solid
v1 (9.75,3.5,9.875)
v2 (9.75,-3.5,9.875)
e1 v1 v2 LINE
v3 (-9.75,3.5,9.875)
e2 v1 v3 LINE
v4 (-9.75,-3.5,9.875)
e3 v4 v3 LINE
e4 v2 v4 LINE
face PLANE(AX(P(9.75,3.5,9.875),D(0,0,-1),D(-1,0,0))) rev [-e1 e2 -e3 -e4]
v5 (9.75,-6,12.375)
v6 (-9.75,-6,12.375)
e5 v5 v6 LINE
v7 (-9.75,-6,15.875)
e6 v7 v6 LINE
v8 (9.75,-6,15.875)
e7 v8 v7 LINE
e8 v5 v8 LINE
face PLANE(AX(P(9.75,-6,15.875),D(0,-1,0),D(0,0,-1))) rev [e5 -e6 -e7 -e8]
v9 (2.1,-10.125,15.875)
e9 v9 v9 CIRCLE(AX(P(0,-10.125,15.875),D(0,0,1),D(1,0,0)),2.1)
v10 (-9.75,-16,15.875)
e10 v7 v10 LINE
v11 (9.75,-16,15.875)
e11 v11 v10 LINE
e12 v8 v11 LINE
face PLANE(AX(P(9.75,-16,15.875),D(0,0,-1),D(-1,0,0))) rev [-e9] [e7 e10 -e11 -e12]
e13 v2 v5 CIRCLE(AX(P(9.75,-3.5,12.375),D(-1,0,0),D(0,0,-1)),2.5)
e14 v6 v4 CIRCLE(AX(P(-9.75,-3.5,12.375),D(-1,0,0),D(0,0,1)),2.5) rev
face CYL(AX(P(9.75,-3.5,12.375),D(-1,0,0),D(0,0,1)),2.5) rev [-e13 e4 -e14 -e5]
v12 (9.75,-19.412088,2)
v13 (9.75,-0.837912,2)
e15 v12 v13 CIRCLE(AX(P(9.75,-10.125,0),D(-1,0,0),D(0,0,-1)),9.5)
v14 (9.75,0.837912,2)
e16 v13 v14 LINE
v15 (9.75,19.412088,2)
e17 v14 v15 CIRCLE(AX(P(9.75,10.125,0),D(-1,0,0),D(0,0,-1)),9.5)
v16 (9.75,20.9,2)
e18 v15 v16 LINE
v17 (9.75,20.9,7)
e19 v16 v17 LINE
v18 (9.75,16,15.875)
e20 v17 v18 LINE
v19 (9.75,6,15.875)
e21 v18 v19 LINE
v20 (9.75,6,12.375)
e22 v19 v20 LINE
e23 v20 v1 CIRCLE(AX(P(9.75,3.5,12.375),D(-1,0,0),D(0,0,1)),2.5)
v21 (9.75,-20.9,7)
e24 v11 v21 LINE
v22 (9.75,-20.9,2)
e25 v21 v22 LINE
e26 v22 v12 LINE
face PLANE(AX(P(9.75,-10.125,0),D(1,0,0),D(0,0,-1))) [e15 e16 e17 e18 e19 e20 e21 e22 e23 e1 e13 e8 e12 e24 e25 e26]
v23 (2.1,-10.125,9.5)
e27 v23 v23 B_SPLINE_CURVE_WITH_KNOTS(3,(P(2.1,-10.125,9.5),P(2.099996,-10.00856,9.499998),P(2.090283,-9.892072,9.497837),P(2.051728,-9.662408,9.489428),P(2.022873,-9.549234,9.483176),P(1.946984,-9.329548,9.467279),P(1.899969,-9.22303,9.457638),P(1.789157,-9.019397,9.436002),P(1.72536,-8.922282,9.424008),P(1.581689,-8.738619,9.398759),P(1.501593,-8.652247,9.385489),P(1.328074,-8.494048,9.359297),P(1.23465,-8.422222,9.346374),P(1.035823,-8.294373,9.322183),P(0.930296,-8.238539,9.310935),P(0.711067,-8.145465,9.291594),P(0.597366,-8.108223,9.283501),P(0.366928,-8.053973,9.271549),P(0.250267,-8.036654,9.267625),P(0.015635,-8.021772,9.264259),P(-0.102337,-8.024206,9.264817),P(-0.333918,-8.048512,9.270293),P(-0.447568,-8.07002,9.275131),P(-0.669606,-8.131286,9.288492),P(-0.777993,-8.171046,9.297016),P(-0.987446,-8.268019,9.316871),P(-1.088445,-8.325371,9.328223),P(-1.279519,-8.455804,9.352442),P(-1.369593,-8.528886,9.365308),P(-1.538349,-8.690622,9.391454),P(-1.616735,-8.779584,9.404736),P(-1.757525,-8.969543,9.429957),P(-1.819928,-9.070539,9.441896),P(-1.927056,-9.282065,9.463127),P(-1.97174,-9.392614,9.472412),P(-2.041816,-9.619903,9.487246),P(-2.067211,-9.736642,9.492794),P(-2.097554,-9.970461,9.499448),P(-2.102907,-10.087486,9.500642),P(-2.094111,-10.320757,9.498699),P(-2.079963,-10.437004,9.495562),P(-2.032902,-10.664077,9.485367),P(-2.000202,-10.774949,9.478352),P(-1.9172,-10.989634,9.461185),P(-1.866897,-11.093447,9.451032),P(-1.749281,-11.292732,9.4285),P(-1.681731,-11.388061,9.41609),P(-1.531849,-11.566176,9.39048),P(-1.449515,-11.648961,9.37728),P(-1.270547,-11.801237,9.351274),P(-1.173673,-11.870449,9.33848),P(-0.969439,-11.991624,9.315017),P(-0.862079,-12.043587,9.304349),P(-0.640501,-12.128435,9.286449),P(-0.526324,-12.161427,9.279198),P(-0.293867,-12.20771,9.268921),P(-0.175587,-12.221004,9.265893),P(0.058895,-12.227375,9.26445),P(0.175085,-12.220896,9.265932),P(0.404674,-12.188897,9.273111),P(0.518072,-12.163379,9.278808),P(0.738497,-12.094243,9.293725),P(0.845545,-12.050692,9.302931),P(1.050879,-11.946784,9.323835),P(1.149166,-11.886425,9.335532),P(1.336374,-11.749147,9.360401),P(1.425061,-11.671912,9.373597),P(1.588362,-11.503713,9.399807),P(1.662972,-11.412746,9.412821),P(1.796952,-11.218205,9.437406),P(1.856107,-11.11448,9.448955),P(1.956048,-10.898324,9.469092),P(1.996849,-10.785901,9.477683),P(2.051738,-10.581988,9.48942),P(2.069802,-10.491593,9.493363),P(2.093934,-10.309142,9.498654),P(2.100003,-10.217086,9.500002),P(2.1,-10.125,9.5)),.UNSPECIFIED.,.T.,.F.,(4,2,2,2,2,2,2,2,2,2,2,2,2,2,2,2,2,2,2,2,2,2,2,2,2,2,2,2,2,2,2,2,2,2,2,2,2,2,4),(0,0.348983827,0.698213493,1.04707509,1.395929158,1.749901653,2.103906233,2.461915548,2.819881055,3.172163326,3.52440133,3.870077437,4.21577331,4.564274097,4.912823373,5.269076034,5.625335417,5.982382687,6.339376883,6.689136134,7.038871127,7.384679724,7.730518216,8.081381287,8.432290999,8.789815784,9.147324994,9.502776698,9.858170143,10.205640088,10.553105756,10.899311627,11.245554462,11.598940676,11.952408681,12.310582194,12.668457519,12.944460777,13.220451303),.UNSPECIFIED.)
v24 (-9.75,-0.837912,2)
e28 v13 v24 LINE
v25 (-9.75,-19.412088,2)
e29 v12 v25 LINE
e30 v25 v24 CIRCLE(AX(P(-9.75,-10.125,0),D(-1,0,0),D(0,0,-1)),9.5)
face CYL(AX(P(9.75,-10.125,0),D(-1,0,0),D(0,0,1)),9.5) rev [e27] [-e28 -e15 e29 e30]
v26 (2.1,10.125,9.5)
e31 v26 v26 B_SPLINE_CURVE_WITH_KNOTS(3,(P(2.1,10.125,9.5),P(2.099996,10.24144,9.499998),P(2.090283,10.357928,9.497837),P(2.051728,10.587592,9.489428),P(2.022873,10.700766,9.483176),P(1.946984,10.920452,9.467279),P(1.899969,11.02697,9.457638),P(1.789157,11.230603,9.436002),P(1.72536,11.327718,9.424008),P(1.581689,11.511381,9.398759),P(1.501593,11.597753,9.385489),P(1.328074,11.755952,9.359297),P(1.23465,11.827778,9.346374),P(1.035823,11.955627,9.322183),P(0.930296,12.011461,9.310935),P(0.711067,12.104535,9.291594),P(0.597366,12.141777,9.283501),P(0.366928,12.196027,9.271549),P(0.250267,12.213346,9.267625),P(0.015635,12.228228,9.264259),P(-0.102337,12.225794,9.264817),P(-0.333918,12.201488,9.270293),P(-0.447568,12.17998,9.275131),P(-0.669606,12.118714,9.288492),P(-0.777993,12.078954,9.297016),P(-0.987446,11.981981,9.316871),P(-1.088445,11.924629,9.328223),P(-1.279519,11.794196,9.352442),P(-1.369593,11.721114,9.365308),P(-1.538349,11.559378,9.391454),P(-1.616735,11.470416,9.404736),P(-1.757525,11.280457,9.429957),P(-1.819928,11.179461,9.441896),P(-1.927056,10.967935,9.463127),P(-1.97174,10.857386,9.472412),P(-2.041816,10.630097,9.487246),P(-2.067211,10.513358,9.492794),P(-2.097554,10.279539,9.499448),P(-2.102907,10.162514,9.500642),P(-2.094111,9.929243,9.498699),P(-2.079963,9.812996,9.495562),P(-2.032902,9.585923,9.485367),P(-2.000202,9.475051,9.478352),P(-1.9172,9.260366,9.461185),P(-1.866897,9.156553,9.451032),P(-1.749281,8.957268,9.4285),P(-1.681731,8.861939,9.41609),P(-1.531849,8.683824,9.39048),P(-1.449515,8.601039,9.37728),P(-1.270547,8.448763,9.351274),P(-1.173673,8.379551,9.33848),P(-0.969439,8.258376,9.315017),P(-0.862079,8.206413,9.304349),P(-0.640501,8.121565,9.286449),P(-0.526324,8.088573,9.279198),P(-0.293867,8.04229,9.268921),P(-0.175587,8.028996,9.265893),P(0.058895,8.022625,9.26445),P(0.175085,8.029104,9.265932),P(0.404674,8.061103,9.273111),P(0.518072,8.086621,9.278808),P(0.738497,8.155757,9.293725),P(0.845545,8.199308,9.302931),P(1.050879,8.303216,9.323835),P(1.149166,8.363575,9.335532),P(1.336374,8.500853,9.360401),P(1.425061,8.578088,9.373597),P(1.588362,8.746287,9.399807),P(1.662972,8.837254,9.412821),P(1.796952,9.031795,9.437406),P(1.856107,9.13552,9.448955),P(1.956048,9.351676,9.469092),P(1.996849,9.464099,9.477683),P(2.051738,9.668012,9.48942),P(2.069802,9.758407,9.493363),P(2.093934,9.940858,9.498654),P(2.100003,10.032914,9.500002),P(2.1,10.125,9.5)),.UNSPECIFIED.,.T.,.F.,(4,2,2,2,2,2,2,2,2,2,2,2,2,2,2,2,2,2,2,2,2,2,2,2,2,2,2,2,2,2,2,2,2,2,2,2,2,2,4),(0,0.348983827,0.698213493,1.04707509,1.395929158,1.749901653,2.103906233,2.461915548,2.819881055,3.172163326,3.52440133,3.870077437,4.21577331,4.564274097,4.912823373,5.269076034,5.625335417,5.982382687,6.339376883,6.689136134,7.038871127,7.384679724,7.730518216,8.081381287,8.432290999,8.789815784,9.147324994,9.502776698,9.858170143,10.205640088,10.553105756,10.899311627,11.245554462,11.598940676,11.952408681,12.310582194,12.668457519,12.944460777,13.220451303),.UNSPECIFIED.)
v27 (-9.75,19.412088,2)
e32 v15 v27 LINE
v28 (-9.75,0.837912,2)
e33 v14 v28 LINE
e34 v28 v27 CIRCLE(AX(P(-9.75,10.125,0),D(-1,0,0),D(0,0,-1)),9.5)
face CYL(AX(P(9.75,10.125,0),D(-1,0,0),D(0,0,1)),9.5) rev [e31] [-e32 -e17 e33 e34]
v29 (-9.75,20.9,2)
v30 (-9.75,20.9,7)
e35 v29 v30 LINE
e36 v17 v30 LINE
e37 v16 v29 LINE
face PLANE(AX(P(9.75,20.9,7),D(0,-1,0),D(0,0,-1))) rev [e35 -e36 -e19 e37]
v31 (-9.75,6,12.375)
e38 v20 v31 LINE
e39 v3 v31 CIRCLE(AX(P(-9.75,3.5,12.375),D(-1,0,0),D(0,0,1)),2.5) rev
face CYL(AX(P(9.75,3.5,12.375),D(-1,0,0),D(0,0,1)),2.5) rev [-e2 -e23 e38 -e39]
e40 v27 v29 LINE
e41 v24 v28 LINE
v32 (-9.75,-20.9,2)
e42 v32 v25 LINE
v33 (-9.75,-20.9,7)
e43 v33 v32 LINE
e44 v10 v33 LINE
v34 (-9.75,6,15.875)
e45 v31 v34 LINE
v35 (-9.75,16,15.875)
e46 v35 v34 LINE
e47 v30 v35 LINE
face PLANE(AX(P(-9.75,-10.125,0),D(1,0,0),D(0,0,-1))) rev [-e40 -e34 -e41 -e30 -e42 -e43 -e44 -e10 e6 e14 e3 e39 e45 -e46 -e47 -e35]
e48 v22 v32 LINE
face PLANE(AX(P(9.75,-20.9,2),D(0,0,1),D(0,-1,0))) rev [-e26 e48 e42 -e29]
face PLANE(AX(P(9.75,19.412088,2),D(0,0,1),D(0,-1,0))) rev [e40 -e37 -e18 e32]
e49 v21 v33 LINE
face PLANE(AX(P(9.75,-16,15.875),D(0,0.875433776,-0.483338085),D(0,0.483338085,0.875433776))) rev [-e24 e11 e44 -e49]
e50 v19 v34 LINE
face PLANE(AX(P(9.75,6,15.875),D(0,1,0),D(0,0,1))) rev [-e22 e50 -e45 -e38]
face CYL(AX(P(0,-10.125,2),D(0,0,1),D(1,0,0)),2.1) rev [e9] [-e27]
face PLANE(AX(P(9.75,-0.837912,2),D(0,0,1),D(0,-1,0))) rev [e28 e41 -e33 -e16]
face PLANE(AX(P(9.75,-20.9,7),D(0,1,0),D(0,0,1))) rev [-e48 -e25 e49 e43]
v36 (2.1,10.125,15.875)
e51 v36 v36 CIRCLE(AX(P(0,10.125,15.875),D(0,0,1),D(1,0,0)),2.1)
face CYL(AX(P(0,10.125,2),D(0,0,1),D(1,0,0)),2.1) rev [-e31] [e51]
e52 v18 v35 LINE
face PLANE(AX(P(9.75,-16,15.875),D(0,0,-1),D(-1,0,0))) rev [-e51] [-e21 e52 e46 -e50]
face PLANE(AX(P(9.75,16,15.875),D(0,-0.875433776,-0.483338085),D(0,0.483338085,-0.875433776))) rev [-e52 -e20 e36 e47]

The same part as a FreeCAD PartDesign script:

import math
import FreeCAD as App
import Part
import Sketcher

V = App.Vector

doc = App.newDocument("Part")
body = doc.addObject("PartDesign::Body", "Body")

# Sketch on YZ plane
sketch1 = body.newObject("Sketcher::SketchObject", "Sketch")
sketch1.AttachmentSupport = (doc.getObject("YZ_Plane"), [""])
sketch1.MapMode = "FlatFace"
sketch1.addGeometry([
    Part.LineSegment(V(16, 15.9, 0), V(-16, 15.9, 0)),  # 0
    Part.LineSegment(V(-16, 15.9, 0), V(-20.9, 7, 0)),  # 1
    Part.LineSegment(V(-20.9, 7, 0), V(-20.9, 2, 0)),  # 2
    Part.LineSegment(V(-20.9, 2, 0), V(-19.4, 2, 0)),  # 3
    Part.ArcOfCircle(Part.Circle(V(-10.1, 0, 0), V(0, 0, 1), 9.5), math.radians(12), math.radians(168)),  # 4
    Part.LineSegment(V(-0.8, 2, 0), V(0.8, 2, 0)),  # 5
    Part.ArcOfCircle(Part.Circle(V(10.1, 0, 0), V(0, 0, 1), 9.5), math.radians(12), math.radians(168)),  # 6
    Part.LineSegment(V(19.4, 2, 0), V(20.9, 2, 0)),  # 7
    Part.LineSegment(V(20.9, 2, 0), V(20.9, 7, 0)),  # 8
    Part.LineSegment(V(20.9, 7, 0), V(16, 15.9, 0)),  # 9
], False)
sketch1.addConstraint([
    Sketcher.Constraint("Coincident", 0, 2, 1, 1),
    Sketcher.Constraint("Coincident", 1, 2, 2, 1),
    Sketcher.Constraint("Coincident", 2, 2, 3, 1),
    Sketcher.Constraint("Coincident", 3, 2, 4, 2),
    Sketcher.Constraint("Coincident", 4, 1, 5, 1),
    Sketcher.Constraint("Coincident", 5, 2, 6, 2),
    Sketcher.Constraint("Coincident", 6, 1, 7, 1),
    Sketcher.Constraint("Coincident", 7, 2, 8, 1),
    Sketcher.Constraint("Coincident", 8, 2, 9, 1),
    Sketcher.Constraint("Coincident", 9, 2, 0, 1),
    Sketcher.Constraint("Horizontal", 0),
    Sketcher.Constraint("Vertical", 2),
    Sketcher.Constraint("Horizontal", 3),
    Sketcher.Constraint("Horizontal", 5),
    Sketcher.Constraint("Horizontal", 7),
    Sketcher.Constraint("Vertical", 8),
    Sketcher.Constraint("Equal", 4, 6),
    Sketcher.Constraint("Symmetric", 4, 3, 6, 3, -1, 1),
    Sketcher.Constraint("Symmetric", 3, 2, 6, 1, -2),
    Sketcher.Constraint("Symmetric", 1, 2, 8, 2, -2),
    Sketcher.Constraint("Horizontal", 3, 2, 4, 1),
    Sketcher.Constraint("Equal", 1, 9),
    Sketcher.Constraint("Radius", 4, 9.5),
    Sketcher.Constraint("DistanceX", 0, 2, 0, 1, 32.0),
    Sketcher.Constraint("DistanceY", 2, 2, 2, 1, 5.0),
    Sketcher.Constraint("DistanceY", -1, 1, 1, 2, 7.0),
    Sketcher.Constraint("DistanceX", 1, 2, -1, 1, 20.9),
    Sketcher.Constraint("DistanceX", 4, 3, 6, 3, 20.25),
    Sketcher.Constraint("DistanceY", -1, 1, 0, 2, 15.875),
])
pad1 = body.newObject("PartDesign::Pad", "Pad")
pad1.Profile = sketch1
pad1.Length = 19.5
pad1.Midplane = True

# Sketch on XY plane
sketch2 = body.newObject("Sketcher::SketchObject", "Sketch001")
sketch2.AttachmentSupport = (doc.getObject("XY_Plane"), [""])
sketch2.MapMode = "FlatFace"
sketch2.AttachmentOffset = App.Placement(V(0, 0, 15.875), App.Rotation())
sketch2.addGeometry([
    Part.Circle(V(0, 10.1, 0), V(0, 0, 1), 2.1),
    Part.Circle(V(0, -10.1, 0), V(0, 0, 1), 2.1),
], False)
sketch2.addConstraint([
    Sketcher.Constraint("Equal", 0, 1),
    Sketcher.Constraint("Symmetric", 0, 3, 1, 3, -1, 1),
    Sketcher.Constraint("PointOnObject", 0, 3, -2),
    Sketcher.Constraint("Diameter", 0, 4.2),
    Sketcher.Constraint("DistanceY", 1, 3, 0, 3, 20.25),
])
pocket1 = body.newObject("PartDesign::Pocket", "Pocket")
pocket1.Profile = sketch2
pocket1.Type = "ThroughAll"

# Sketch on YZ plane
sketch3 = body.newObject("Sketcher::SketchObject", "Sketch002")
sketch3.AttachmentSupport = (doc.getObject("YZ_Plane"), [""])
sketch3.MapMode = "FlatFace"
sketch3.AttachmentOffset = App.Placement(V(0, 0, -9.75), App.Rotation())
sketch3.addGeometry([
    Part.LineSegment(V(6, 15.9, 0), V(6, 12.4, 0)),  # 0
    Part.ArcOfCircle(Part.Circle(V(3.5, 12.4, 0), V(0, 0, 1), 2.5), math.radians(-90), math.radians(0)),  # 1
    Part.LineSegment(V(3.5, 9.9, 0), V(-3.5, 9.9, 0)),  # 2
    Part.ArcOfCircle(Part.Circle(V(-3.5, 12.4, 0), V(0, 0, 1), 2.5), math.radians(180), math.radians(270)),  # 3
    Part.LineSegment(V(-6, 12.4, 0), V(-6, 15.9, 0)),  # 4
    Part.LineSegment(V(-6, 15.9, 0), V(6, 15.9, 0)),  # 5
], False)
sketch3.addConstraint([
    Sketcher.Constraint("Tangent", 0, 2, 1, 2),
    Sketcher.Constraint("Tangent", 1, 1, 2, 1),
    Sketcher.Constraint("Tangent", 2, 2, 3, 2),
    Sketcher.Constraint("Tangent", 3, 1, 4, 1),
    Sketcher.Constraint("Coincident", 4, 2, 5, 1),
    Sketcher.Constraint("Coincident", 5, 2, 0, 1),
    Sketcher.Constraint("Vertical", 0),
    Sketcher.Constraint("Horizontal", 2),
    Sketcher.Constraint("Vertical", 4),
    Sketcher.Constraint("Horizontal", 5),
    Sketcher.Constraint("Equal", 1, 3),
    Sketcher.Constraint("Radius", 1, 2.5),
    Sketcher.Constraint("DistanceX", 2, 2, 2, 1, 7.0),
    Sketcher.Constraint("DistanceY", 0, 2, 0, 1, 3.5),
    Sketcher.Constraint("DistanceX", -1, 1, 0, 2, 6.0),
    Sketcher.Constraint("DistanceY", -1, 1, 1, 3, 12.375),
])
pocket2 = body.newObject("PartDesign::Pocket", "Pocket001")
pocket2.Profile = sketch3
pocket2.Type = "ThroughAll"
pocket2.Midplane = True

doc.recompute()
